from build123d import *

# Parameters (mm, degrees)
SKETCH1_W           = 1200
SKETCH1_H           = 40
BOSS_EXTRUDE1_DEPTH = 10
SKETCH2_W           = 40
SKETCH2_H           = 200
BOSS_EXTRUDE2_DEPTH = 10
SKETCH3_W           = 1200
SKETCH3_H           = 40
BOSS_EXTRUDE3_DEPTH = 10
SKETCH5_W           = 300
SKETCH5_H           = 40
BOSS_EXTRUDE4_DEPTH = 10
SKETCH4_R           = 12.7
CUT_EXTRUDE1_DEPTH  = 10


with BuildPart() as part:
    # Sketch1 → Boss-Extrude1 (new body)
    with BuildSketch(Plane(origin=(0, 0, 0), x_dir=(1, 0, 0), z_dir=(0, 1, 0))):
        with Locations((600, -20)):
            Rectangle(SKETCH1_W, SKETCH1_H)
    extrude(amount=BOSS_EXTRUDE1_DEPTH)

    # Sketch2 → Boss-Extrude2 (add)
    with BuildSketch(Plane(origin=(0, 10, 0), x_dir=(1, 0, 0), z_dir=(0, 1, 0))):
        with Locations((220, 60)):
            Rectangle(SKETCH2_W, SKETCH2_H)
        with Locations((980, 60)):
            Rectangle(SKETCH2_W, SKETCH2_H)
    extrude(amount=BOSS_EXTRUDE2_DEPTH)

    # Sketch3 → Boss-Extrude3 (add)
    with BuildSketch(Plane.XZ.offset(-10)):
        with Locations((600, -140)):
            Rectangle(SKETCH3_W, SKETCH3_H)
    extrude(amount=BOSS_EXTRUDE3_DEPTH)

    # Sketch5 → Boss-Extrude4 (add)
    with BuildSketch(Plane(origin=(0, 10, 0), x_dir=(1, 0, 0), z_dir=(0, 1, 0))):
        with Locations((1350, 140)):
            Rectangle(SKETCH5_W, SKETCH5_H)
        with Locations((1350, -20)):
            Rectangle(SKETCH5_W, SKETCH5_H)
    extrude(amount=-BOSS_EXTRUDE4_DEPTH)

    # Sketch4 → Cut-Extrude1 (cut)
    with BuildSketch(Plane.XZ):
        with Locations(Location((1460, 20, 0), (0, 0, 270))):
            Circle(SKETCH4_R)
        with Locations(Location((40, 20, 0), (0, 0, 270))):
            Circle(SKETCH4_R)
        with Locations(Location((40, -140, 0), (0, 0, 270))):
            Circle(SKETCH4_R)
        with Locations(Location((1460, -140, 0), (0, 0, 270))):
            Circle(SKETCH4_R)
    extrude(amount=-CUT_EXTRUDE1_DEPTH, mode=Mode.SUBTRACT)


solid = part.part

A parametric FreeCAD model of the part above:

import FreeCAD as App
import Part
import Sketcher
from FreeCAD import Vector
Q = App.Units.Quantity


def add_polygon(sketch, points):
    """Adds a closed chain of lines whose ends are joined by coincident constraints."""
    first, n = sketch.GeometryCount, len(points)
    for a, b in zip(points, points[1:] + points[:1]):
        sketch.addGeometry(Part.LineSegment(App.Vector(*a, 0), App.Vector(*b, 0)), False)
    for i in range(n):
        sketch.addConstraint(Sketcher.Constraint("Coincident", first + i, 2, first + (i + 1) % n, 1))

doc = App.newDocument("Part")
body = doc.addObject("PartDesign::Body", "Body")

# Sketch on XZ plane
sketch1 = body.newObject("Sketcher::SketchObject", "Sketch")
sketch1.AttachmentSupport = (doc.getObject("XZ_Plane"), [""])
sketch1.MapMode = "FlatFace"
add_polygon(sketch1, [(0, 0), (0, 40), (1200, 40), (1200, 0)])  # lines 0-3
sketch1.addConstraint([
    Sketcher.Constraint("Vertical", 0),
    Sketcher.Constraint("Horizontal", 1),
    Sketcher.Constraint("Vertical", 2),
    Sketcher.Constraint("Horizontal", 3),
    Sketcher.Constraint("Coincident", 3, 2, -1, 1),
    Sketcher.Constraint("DistanceX", 1, 1, 1, 2, Q("1200 mm")),
    Sketcher.Constraint("DistanceY", 0, 1, 0, 2, Q("40 mm")),
])
pad1 = body.newObject("PartDesign::Pad", "Pad")
pad1.Profile = sketch1
pad1.Length = 10
pad1.Reversed = True

# Sketch on XZ plane
sketch2 = body.newObject("Sketcher::SketchObject", "Sketch001")
sketch2.AttachmentSupport = (doc.getObject("XZ_Plane"), [""])
sketch2.MapMode = "FlatFace"
sketch2.AttachmentOffset = App.Placement(Vector(0, 0, -10), App.Rotation())
add_polygon(sketch2, [(200, -160), (200, 40), (240, 40), (240, -160)])  # lines 0-3
add_polygon(sketch2, [(960, -160), (960, 40), (1000, 40), (1000, -160)])  # lines 4-7
sketch2.addConstraint([
    Sketcher.Constraint("Vertical", 0),
    Sketcher.Constraint("Horizontal", 1),
    Sketcher.Constraint("Vertical", 2),
    Sketcher.Constraint("Horizontal", 3),
    Sketcher.Constraint("Vertical", 4),
    Sketcher.Constraint("Horizontal", 5),
    Sketcher.Constraint("Vertical", 6),
    Sketcher.Constraint("Horizontal", 7),
    Sketcher.Constraint("Horizontal", 1, 2, 4, 2),
    Sketcher.Constraint("Horizontal", 3, 2, 6, 2),
    Sketcher.Constraint("Equal", 3, 5),
    Sketcher.Constraint("DistanceX", 1, 1, 1, 2, Q("40 mm")),
    Sketcher.Constraint("DistanceY", 0, 1, 0, 2, Q("200 mm")),
    Sketcher.Constraint("DistanceX", -1, 1, 0, 2, Q("200 mm")),
    Sketcher.Constraint("DistanceY", -1, 1, 0, 2, Q("40 mm")),
    Sketcher.Constraint("DistanceX", -1, 1, 4, 2, Q("960 mm")),
])
pad2 = body.newObject("PartDesign::Pad", "Pad001")
pad2.Profile = sketch2
pad2.Length = 10
pad2.Reversed = True

# Sketch on XZ plane
sketch3 = body.newObject("Sketcher::SketchObject", "Sketch002")
sketch3.AttachmentSupport = (doc.getObject("XZ_Plane"), [""])
sketch3.MapMode = "FlatFace"
sketch3.AttachmentOffset = App.Placement(Vector(0, 0, -10), App.Rotation())
add_polygon(sketch3, [(0, -120), (0, -160), (1200, -160), (1200, -120)])  # lines 0-3
sketch3.addConstraint([
    Sketcher.Constraint("Vertical", 0),
    Sketcher.Constraint("Horizontal", 1),
    Sketcher.Constraint("Vertical", 2),
    Sketcher.Constraint("Horizontal", 3),
    Sketcher.Constraint("PointOnObject", 0, 2, -2),
    Sketcher.Constraint("DistanceX", 1, 1, 1, 2, Q("1200 mm")),
    Sketcher.Constraint("DistanceY", 0, 2, 0, 1, Q("40 mm")),
    Sketcher.Constraint("DistanceY", 0, 2, -1, 1, Q("160 mm")),
])
pad3 = body.newObject("PartDesign::Pad", "Pad002")
pad3.Profile = sketch3
pad3.Length = 10

# Sketch on XZ plane
sketch4 = body.newObject("Sketcher::SketchObject", "Sketch003")
sketch4.AttachmentSupport = (doc.getObject("XZ_Plane"), [""])
sketch4.MapMode = "FlatFace"
sketch4.AttachmentOffset = App.Placement(Vector(0, 0, -10), App.Rotation())
add_polygon(sketch4, [(1200, -160), (1200, -120), (1500, -120), (1500, -160)])  # lines 0-3
add_polygon(sketch4, [(1200, 0), (1200, 40), (1500, 40), (1500, 0)])  # lines 4-7
sketch4.addConstraint([
    Sketcher.Constraint("Vertical", 0),
    Sketcher.Constraint("Horizontal", 1),
    Sketcher.Constraint("Vertical", 2),
    Sketcher.Constraint("Horizontal", 3),
    Sketcher.Constraint("Vertical", 4),
    Sketcher.Constraint("Horizontal", 5),
    Sketcher.Constraint("Vertical", 6),
    Sketcher.Constraint("Horizontal", 7),
    Sketcher.Constraint("PointOnObject", 6, 2, -1),
    Sketcher.Constraint("Vertical", 3, 2, 4, 2),
    Sketcher.Constraint("Vertical", 2, 2, 5, 2),
    Sketcher.Constraint("Equal", 2, 4),
    Sketcher.Constraint("DistanceX", 1, 1, 1, 2, Q("300 mm")),
    Sketcher.Constraint("DistanceY", 0, 1, 0, 2, Q("40 mm")),
    Sketcher.Constraint("DistanceX", -1, 1, 0, 2, Q("1200 mm")),
    Sketcher.Constraint("DistanceY", 0, 2, -1, 1, Q("120 mm")),
])
pad4 = body.newObject("PartDesign::Pad", "Pad003")
pad4.Profile = sketch4
pad4.Length = 10

# Sketch on XZ plane
sketch5 = body.newObject("Sketcher::SketchObject", "Sketch004")
sketch5.AttachmentSupport = (doc.getObject("XZ_Plane"), [""])
sketch5.MapMode = "FlatFace"
sketch5.addGeometry([
    Part.Circle(Vector(1460, 20, 0), Vector(0, 0, 1), 13),
    Part.Circle(Vector(40, 20, 0), Vector(0, 0, 1), 13),
    Part.Circle(Vector(40, -140, 0), Vector(0, 0, 1), 13),
    Part.Circle(Vector(1460, -140, 0), Vector(0, 0, 1), 13),
], False)
sketch5.addConstraint([
    Sketcher.Constraint("Equal", 0, 1),
    Sketcher.Constraint("Equal", 1, 2),
    Sketcher.Constraint("Equal", 2, 3),
    Sketcher.Constraint("Horizontal", 0, 3, 1, 3),
    Sketcher.Constraint("Horizontal", 2, 3, 3, 3),
    Sketcher.Constraint("Vertical", 1, 3, 2, 3),
    Sketcher.Constraint("Vertical", 0, 3, 3, 3),
    Sketcher.Constraint("Diameter", 0, Q("25.4 mm")),
    Sketcher.Constraint("DistanceX", -1, 1, 0, 3, Q("1460 mm")),
    Sketcher.Constraint("DistanceY", -1, 1, 0, 3, Q("20 mm")),
    Sketcher.Constraint("DistanceX", -1, 1, 1, 3, Q("40 mm")),
    Sketcher.Constraint("DistanceY", 2, 3, -1, 1, Q("140 mm")),
])
pocket1 = body.newObject("PartDesign::Pocket", "Pocket")
pocket1.Profile = sketch5
pocket1.Length = 10

doc.recompute()
